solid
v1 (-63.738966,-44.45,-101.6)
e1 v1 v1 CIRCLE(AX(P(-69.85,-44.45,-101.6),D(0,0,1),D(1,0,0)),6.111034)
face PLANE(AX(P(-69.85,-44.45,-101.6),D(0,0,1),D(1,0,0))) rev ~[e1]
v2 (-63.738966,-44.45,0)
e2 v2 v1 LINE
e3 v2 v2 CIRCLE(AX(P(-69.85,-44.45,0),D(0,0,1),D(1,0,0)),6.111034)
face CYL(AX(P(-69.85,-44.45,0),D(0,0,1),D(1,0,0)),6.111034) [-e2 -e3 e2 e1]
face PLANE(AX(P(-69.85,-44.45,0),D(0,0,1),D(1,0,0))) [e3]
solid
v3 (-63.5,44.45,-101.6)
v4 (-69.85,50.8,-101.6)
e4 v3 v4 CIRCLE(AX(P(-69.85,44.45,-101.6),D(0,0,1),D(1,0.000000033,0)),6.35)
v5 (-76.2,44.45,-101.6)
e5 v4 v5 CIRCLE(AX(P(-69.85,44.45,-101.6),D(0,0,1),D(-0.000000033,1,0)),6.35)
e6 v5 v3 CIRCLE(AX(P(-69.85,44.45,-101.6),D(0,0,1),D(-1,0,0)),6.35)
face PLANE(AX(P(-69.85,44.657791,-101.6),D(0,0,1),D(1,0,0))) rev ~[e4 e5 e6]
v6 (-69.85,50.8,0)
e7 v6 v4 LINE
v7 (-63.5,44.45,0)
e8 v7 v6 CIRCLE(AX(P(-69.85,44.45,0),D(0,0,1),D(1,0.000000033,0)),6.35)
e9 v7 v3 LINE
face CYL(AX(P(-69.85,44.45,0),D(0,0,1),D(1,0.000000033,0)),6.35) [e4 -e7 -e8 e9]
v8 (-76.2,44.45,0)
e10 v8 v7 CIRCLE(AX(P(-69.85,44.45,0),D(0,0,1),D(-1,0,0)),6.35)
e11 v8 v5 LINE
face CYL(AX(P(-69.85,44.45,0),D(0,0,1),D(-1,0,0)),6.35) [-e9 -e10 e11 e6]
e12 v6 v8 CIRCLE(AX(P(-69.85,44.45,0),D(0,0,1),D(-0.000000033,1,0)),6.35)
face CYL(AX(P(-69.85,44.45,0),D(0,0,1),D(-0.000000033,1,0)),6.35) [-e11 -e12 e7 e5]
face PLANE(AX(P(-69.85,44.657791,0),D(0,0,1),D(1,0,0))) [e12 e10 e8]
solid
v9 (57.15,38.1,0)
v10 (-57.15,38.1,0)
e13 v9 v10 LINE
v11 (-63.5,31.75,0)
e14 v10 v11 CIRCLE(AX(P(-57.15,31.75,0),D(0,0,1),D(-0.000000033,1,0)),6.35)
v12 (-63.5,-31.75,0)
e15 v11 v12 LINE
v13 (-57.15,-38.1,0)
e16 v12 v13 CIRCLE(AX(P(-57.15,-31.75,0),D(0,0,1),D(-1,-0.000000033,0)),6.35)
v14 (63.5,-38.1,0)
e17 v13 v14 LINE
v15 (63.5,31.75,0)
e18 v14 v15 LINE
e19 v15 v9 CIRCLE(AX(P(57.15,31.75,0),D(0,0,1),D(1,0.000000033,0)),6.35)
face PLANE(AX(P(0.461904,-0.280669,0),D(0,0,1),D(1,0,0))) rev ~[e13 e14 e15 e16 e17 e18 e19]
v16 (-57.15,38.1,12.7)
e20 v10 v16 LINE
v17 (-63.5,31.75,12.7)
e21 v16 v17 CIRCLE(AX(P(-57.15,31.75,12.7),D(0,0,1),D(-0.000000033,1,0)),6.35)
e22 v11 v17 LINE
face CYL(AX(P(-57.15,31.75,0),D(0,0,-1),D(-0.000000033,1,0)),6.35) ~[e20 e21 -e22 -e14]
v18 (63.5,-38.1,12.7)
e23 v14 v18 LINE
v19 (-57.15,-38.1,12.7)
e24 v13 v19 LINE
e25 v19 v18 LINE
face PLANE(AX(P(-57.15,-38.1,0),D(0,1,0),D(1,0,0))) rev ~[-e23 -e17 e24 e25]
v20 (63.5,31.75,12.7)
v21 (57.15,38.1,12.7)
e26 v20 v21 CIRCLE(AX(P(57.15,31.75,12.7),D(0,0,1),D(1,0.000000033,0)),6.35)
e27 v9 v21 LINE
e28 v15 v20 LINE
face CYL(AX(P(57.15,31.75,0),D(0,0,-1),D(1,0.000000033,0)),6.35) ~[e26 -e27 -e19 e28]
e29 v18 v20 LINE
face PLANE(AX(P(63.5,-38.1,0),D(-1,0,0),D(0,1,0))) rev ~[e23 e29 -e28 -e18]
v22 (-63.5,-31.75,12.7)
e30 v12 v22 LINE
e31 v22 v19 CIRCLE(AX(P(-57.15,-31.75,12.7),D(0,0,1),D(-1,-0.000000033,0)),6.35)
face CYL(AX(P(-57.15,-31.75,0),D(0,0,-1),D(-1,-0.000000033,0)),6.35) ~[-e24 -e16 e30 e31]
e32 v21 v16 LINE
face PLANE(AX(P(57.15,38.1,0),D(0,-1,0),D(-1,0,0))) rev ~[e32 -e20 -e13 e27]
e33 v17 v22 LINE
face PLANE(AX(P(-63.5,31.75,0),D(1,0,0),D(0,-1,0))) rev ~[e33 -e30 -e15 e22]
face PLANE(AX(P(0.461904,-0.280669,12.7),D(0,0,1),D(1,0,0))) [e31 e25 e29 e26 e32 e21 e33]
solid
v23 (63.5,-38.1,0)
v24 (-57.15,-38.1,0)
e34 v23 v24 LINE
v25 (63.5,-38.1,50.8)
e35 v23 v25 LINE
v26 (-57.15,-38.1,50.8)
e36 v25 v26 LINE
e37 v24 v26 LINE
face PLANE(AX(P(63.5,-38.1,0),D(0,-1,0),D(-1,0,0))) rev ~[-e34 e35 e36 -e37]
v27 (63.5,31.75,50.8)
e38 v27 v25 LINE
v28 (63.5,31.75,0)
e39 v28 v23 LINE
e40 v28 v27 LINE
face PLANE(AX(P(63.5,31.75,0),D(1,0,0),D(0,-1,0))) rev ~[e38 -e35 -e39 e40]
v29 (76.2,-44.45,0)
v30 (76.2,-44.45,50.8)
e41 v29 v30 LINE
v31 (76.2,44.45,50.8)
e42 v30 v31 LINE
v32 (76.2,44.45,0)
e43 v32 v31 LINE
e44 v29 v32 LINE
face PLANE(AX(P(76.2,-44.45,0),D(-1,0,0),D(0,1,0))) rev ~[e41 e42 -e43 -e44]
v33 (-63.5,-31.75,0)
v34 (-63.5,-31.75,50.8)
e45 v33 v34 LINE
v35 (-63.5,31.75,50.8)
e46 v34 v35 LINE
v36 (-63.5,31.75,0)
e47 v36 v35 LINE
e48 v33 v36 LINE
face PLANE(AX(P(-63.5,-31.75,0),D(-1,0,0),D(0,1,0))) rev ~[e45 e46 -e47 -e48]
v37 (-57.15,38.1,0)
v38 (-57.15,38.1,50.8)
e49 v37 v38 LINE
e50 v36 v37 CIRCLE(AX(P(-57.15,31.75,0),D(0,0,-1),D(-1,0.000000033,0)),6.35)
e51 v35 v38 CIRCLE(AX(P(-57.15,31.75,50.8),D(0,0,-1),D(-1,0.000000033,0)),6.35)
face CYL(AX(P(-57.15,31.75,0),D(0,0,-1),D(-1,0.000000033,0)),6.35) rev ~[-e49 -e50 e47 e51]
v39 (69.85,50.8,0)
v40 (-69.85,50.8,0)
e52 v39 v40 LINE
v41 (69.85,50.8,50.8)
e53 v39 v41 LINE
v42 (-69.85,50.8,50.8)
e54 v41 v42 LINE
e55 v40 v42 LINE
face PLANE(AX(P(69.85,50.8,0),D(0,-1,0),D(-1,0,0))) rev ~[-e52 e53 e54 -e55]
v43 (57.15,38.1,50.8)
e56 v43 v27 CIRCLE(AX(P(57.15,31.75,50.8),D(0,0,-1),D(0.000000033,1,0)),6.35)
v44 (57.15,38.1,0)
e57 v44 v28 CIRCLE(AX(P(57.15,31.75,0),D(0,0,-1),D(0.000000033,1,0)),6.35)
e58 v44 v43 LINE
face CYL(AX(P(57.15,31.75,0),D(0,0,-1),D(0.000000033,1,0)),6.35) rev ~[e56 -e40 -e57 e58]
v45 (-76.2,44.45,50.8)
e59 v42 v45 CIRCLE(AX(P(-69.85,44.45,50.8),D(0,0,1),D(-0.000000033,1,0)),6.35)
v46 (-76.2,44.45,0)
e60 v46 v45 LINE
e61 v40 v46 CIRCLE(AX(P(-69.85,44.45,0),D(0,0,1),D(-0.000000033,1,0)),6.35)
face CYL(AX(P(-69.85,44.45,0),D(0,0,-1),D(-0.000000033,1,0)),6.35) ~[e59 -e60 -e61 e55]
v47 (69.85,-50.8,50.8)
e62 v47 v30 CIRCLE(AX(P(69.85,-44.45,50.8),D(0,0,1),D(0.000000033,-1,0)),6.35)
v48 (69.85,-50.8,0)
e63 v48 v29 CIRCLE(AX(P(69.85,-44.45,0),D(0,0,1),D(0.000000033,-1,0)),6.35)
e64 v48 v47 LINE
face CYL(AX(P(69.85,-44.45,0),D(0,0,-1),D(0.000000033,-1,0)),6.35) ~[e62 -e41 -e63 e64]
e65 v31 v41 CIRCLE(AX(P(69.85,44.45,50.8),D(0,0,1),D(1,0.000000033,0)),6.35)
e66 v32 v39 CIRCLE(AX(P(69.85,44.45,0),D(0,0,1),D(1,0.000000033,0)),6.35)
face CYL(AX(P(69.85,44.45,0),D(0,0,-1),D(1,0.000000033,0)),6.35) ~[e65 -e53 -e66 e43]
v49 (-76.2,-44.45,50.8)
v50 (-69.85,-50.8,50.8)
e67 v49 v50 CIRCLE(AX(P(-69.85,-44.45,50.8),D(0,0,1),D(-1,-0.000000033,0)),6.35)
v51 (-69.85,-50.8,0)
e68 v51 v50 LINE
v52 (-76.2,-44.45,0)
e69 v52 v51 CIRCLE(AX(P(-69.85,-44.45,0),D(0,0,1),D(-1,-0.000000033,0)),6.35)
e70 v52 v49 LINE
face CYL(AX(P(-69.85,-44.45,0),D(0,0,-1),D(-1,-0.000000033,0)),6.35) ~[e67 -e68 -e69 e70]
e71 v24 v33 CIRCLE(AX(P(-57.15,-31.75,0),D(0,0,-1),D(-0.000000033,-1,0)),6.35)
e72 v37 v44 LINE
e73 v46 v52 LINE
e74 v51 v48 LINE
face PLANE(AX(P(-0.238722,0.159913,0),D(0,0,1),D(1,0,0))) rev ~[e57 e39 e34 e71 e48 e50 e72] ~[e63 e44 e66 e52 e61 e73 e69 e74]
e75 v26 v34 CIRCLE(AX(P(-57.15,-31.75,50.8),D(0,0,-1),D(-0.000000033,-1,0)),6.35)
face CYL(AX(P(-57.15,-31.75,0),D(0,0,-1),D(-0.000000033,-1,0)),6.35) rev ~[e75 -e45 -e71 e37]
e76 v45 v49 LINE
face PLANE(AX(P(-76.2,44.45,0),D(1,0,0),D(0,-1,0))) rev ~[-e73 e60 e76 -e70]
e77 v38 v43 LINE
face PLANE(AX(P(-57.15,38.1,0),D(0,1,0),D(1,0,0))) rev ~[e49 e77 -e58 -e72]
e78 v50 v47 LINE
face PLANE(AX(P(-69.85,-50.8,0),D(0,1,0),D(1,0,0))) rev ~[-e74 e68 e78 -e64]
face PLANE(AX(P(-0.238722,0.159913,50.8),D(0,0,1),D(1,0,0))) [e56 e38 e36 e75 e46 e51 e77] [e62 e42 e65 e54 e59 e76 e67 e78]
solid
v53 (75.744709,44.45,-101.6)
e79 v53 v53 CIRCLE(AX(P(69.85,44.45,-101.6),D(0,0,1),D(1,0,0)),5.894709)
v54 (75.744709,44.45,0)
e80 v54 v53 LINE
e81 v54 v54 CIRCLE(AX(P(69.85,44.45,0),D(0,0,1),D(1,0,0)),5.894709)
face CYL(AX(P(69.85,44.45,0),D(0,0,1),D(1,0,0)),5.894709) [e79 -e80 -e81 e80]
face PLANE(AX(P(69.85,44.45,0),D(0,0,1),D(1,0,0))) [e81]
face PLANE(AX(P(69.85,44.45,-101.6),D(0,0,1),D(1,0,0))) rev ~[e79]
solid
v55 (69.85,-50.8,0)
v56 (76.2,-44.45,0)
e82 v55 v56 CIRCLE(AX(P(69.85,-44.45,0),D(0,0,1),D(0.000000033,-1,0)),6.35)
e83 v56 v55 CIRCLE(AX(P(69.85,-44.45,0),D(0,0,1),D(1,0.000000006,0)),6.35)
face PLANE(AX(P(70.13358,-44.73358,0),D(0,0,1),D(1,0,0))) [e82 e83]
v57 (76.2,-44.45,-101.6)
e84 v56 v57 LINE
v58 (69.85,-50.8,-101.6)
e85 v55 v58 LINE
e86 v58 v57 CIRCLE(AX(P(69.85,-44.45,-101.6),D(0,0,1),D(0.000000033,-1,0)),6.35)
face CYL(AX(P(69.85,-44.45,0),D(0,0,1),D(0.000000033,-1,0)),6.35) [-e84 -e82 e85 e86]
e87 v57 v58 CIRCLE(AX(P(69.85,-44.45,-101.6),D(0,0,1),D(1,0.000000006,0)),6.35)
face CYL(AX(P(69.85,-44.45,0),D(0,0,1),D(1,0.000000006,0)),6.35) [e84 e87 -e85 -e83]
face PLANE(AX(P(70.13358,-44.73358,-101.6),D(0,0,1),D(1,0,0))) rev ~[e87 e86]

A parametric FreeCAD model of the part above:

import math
import FreeCAD as App
import Part
import Sketcher
Q = App.Units.Quantity

doc = App.newDocument("Part")
body = doc.addObject("PartDesign::Body", "Body")

# Sketch on XY plane
sketch1 = body.newObject("Sketcher::SketchObject", "Sketch")
sketch1.AttachmentSupport = (doc.getObject("XY_Plane"), [""])
sketch1.MapMode = "FlatFace"
sketch1.addGeometry([
    Part.ArcOfCircle(Part.Circle(App.Vector(70, 44, 0), App.Vector(0, 0, 1), 6), math.radians(0), math.radians(90)),  # 0
    Part.LineSegment(App.Vector(70, 51, 0), App.Vector(-70, 51, 0)),  # 1
    Part.ArcOfCircle(Part.Circle(App.Vector(-70, 44, 0), App.Vector(0, 0, 1), 6), math.radians(90), math.radians(180)),  # 2
    Part.LineSegment(App.Vector(-76, 44, 0), App.Vector(-76, -44, 0)),  # 3
    Part.ArcOfCircle(Part.Circle(App.Vector(-70, -44, 0), App.Vector(0, 0, 1), 6), math.radians(-180), math.radians(-90)),  # 4
    Part.LineSegment(App.Vector(-70, -51, 0), App.Vector(70, -51, 0)),  # 5
    Part.ArcOfCircle(Part.Circle(App.Vector(70, -44, 0), App.Vector(0, 0, 1), 6), math.radians(-90), math.radians(0)),  # 6
    Part.LineSegment(App.Vector(76, -44, 0), App.Vector(76, 44, 0)),  # 7
    Part.ArcOfCircle(Part.Circle(App.Vector(-57, 32, 0), App.Vector(0, 0, 1), 6), math.radians(90), math.radians(180)),  # 8
    Part.LineSegment(App.Vector(-57, 38, 0), App.Vector(57, 38, 0)),  # 9
    Part.ArcOfCircle(Part.Circle(App.Vector(57, 32, 0), App.Vector(0, 0, 1), 6), math.radians(0), math.radians(90)),  # 10
    Part.LineSegment(App.Vector(64, 32, 0), App.Vector(64, -38, 0)),  # 11
    Part.LineSegment(App.Vector(64, -38, 0), App.Vector(-57, -38, 0)),  # 12
    Part.ArcOfCircle(Part.Circle(App.Vector(-57, -32, 0), App.Vector(0, 0, 1), 6), math.radians(-180), math.radians(-90)),  # 13
    Part.LineSegment(App.Vector(-64, -32, 0), App.Vector(-64, 32, 0)),  # 14
], False)
sketch1.addConstraint([
    Sketcher.Constraint("Tangent", 0, 2, 1, 1),
    Sketcher.Constraint("Tangent", 1, 2, 2, 1),
    Sketcher.Constraint("Tangent", 2, 2, 3, 1),
    Sketcher.Constraint("Tangent", 3, 2, 4, 1),
    Sketcher.Constraint("Tangent", 4, 2, 5, 1),
    Sketcher.Constraint("Tangent", 5, 2, 6, 1),
    Sketcher.Constraint("Tangent", 6, 2, 7, 1),
    Sketcher.Constraint("Tangent", 7, 2, 0, 1),
    Sketcher.Constraint("Tangent", 8, 1, 9, 1),
    Sketcher.Constraint("Tangent", 9, 2, 10, 2),
    Sketcher.Constraint("Tangent", 10, 1, 11, 1),
    Sketcher.Constraint("Coincident", 11, 2, 12, 1),
    Sketcher.Constraint("Tangent", 12, 2, 13, 2),
    Sketcher.Constraint("Tangent", 13, 1, 14, 1),
    Sketcher.Constraint("Tangent", 14, 2, 8, 2),
    Sketcher.Constraint("Horizontal", 1),
    Sketcher.Constraint("Vertical", 3),
    Sketcher.Constraint("Horizontal", 5),
    Sketcher.Constraint("Vertical", 7),
    Sketcher.Constraint("Horizontal", 9),
    Sketcher.Constraint("Vertical", 11),
    Sketcher.Constraint("Horizontal", 12),
    Sketcher.Constraint("Vertical", 14),
    Sketcher.Constraint("Equal", 0, 2),
    Sketcher.Constraint("Equal", 2, 4),
    Sketcher.Constraint("Equal", 4, 6),
    Sketcher.Constraint("Equal", 6, 8),
    Sketcher.Constraint("Equal", 8, 10),
    Sketcher.Constraint("Equal", 10, 13),
    Sketcher.Constraint("Symmetric", 0, 3, 4, 3, -1, 1),
    Sketcher.Constraint("Symmetric", 10, 3, 13, 3, -1, 1),
    Sketcher.Constraint("Radius", 0, Q("0.25 in")),
    Sketcher.Constraint("DistanceX", 1, 2, 1, 1, Q("5.5 in")),
    Sketcher.Constraint("DistanceX", 9, 1, 9, 2, Q("4.5 in")),
    Sketcher.Constraint("DistanceY", 3, 2, 3, 1, Q("3.5 in")),
    Sketcher.Constraint("DistanceY", 14, 1, 14, 2, Q("2.5 in")),
])
pad1 = body.newObject("PartDesign::Pad", "Pad")
pad1.Profile = sketch1
pad1.Length = Q("2 in")
body2 = doc.addObject("PartDesign::Body", "Body001")
body2.AllowCompound = True

# Sketch on XY plane
sketch2 = body2.newObject("Sketcher::SketchObject", "Sketch001")
sketch2.AttachmentSupport = (doc.getObject("XY_Plane001"), [""])
sketch2.MapMode = "FlatFace"
sketch2.addGeometry([
    Part.ArcOfCircle(Part.Circle(App.Vector(-70, 44, 0), App.Vector(0, 0, 1), 6), math.radians(0), math.radians(90)),  # 0
    Part.ArcOfCircle(Part.Circle(App.Vector(-70, 44, 0), App.Vector(0, 0, 1), 6), math.radians(90), math.radians(180)),  # 1
    Part.ArcOfCircle(Part.Circle(App.Vector(-70, 44, 0), App.Vector(0, 0, 1), 6), math.radians(180), math.radians(360)),  # 2
    Part.Circle(App.Vector(70, 44, 0), App.Vector(0, 0, 1), 6),  # 3
    Part.ArcOfCircle(Part.Circle(App.Vector(70, -44, 0), App.Vector(0, 0, 1), 6), math.radians(-90), math.radians(0)),  # 4
    Part.ArcOfCircle(Part.Circle(App.Vector(70, -44, 0), App.Vector(0, 0, 1), 6), math.radians(0), math.radians(270)),  # 5
    Part.Circle(App.Vector(-70, -44, 0), App.Vector(0, 0, 1), 6),  # 6
], False)
sketch2.addConstraint([
    Sketcher.Constraint("Tangent", 0, 2, 1, 1),
    Sketcher.Constraint("Tangent", 1, 2, 2, 1),
    Sketcher.Constraint("Tangent", 2, 2, 0, 1),
    Sketcher.Constraint("Tangent", 4, 1, 5, 2),
    Sketcher.Constraint("Coincident", 5, 1, 4, 2),
    Sketcher.Constraint("Equal", 2, 4),
    Sketcher.Constraint("Symmetric", 0, 3, 4, 3, -1, 1),
    Sketcher.Constraint("Symmetric", 3, 3, 6, 3, -1, 1),
    Sketcher.Constraint("Symmetric", 0, 3, 3, 3, -2),
    Sketcher.Constraint("Horizontal", 3, 3, 1, 2),
    Sketcher.Constraint("Horizontal", 1, 2, 2, 2),
    Sketcher.Constraint("Horizontal", 6, 3, 5, 1),
    Sketcher.Constraint("Vertical", 6, 3, 0, 2),
    Sketcher.Constraint("Vertical", 5, 3, 4, 1),
    Sketcher.Constraint("Radius", 0, Q("0.25 in")),
    Sketcher.Constraint("DistanceY", -1, 1, 0, 2, Q("2 in")),
    Sketcher.Constraint("DistanceX", 1, 2, -1, 1, Q("3 in")),
    Sketcher.Constraint("Diameter", 3, 11.789418),
    Sketcher.Constraint("Diameter", 6, 12.222068),
])
pad2 = body2.newObject("PartDesign::Pad", "Pad001")
pad2.Profile = sketch2
pad2.Length = Q("4 in")
pad2.Reversed = True
body3 = doc.addObject("PartDesign::Body", "Body002")

# Sketch on XY plane
sketch3 = body3.newObject("Sketcher::SketchObject", "Sketch002")
sketch3.AttachmentSupport = (doc.getObject("XY_Plane002"), [""])
sketch3.MapMode = "FlatFace"
sketch3.addGeometry([
    Part.ArcOfCircle(Part.Circle(App.Vector(57, 32, 0), App.Vector(0, 0, 1), 6), math.radians(0), math.radians(90)),  # 0
    Part.LineSegment(App.Vector(57, 38, 0), App.Vector(-57, 38, 0)),  # 1
    Part.ArcOfCircle(Part.Circle(App.Vector(-57, 32, 0), App.Vector(0, 0, 1), 6), math.radians(90), math.radians(180)),  # 2
    Part.LineSegment(App.Vector(-64, 32, 0), App.Vector(-64, -32, 0)),  # 3
    Part.ArcOfCircle(Part.Circle(App.Vector(-57, -32, 0), App.Vector(0, 0, 1), 6), math.radians(-180), math.radians(-90)),  # 4
    Part.LineSegment(App.Vector(-57, -38, 0), App.Vector(64, -38, 0)),  # 5
    Part.LineSegment(App.Vector(64, -38, 0), App.Vector(64, 32, 0)),  # 6
], False)
sketch3.addConstraint([
    Sketcher.Constraint("Tangent", 0, 2, 1, 1),
    Sketcher.Constraint("Tangent", 1, 2, 2, 1),
    Sketcher.Constraint("Tangent", 2, 2, 3, 1),
    Sketcher.Constraint("Tangent", 3, 2, 4, 1),
    Sketcher.Constraint("Tangent", 4, 2, 5, 1),
    Sketcher.Constraint("Coincident", 5, 2, 6, 1),
    Sketcher.Constraint("Tangent", 6, 2, 0, 1),
    Sketcher.Constraint("Horizontal", 1),
    Sketcher.Constraint("Vertical", 3),
    Sketcher.Constraint("Horizontal", 5),
    Sketcher.Constraint("Vertical", 6),
    Sketcher.Constraint("Equal", 0, 2),
    Sketcher.Constraint("Equal", 2, 4),
    Sketcher.Constraint("Symmetric", 0, 3, 4, 3, -1, 1),
    Sketcher.Constraint("Radius", 0, Q("0.25 in")),
    Sketcher.Constraint("DistanceX", 1, 2, 1, 1, Q("4.5 in")),
    Sketcher.Constraint("DistanceY", 3, 2, 3, 1, Q("2.5 in")),
])
pad3 = body3.newObject("PartDesign::Pad", "Pad002")
pad3.Profile = sketch3
pad3.Length = Q("0.5 in")

doc.recompute()
